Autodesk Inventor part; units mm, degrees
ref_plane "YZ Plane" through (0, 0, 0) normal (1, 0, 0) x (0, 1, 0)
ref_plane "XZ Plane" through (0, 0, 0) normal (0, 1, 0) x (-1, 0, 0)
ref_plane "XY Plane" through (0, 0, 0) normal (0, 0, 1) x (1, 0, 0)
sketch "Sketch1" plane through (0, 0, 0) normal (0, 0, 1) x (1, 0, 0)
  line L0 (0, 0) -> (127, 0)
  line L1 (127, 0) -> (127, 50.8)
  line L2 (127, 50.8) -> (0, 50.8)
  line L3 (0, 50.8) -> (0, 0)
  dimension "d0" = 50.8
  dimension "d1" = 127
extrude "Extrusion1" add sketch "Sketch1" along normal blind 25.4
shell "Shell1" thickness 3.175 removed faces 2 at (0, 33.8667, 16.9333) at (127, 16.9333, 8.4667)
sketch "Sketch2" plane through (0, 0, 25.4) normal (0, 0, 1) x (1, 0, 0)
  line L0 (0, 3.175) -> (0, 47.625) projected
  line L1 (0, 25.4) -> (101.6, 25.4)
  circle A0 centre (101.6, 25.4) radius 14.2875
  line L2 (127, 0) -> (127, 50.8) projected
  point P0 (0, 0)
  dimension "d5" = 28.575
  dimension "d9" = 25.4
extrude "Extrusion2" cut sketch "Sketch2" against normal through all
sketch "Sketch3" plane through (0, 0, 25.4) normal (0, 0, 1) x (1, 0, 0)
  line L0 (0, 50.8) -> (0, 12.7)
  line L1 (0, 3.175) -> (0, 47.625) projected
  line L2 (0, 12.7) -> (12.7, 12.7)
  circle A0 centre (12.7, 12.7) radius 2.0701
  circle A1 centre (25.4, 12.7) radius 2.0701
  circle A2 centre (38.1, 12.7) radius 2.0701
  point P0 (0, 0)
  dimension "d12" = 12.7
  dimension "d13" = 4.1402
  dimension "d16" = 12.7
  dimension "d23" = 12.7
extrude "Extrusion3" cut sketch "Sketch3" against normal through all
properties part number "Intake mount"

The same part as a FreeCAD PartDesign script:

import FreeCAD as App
import Part
import Sketcher
Q = App.Units.Quantity


def faces_at(feature, points):
    """Names of the faces that lie closest to the given points."""
    faces = feature.Shape.Faces
    near = lambda p: min(range(len(faces)), key=lambda i: faces[i].distToShape(Part.Vertex(*p))[0])
    return sorted({f"Face{near(p) + 1}" for p in points})


def add_polygon(sketch, points):
    """Adds a closed chain of lines whose ends are joined by coincident constraints."""
    first, n = sketch.GeometryCount, len(points)
    for a, b in zip(points, points[1:] + points[:1]):
        sketch.addGeometry(Part.LineSegment(App.Vector(*a, 0), App.Vector(*b, 0)), False)
    for i in range(n):
        sketch.addConstraint(Sketcher.Constraint("Coincident", first + i, 2, first + (i + 1) % n, 1))

doc = App.newDocument("Part")
body = doc.addObject("PartDesign::Body", "Body")

# Sketch on XY plane
sketch1 = body.newObject("Sketcher::SketchObject", "Sketch")
sketch1.AttachmentSupport = (doc.getObject("XY_Plane"), [""])
sketch1.MapMode = "FlatFace"
add_polygon(sketch1, [(0, 51), (0, 0), (127, 0), (127, 51)])  # lines 0-3
sketch1.addConstraint(Sketcher.Constraint("Vertical", 0))
sketch1.addConstraint(Sketcher.Constraint("Horizontal", 1))
sketch1.addConstraint(Sketcher.Constraint("Vertical", 2))
sketch1.addConstraint(Sketcher.Constraint("Horizontal", 3))
sketch1.addConstraint(Sketcher.Constraint("Coincident", 0, 2, -1, 1))
sketch1.addConstraint(Sketcher.Constraint("DistanceX", 1, 1, 1, 2, Q("5 in")))
sketch1.addConstraint(Sketcher.Constraint("DistanceY", 0, 2, 0, 1, Q("2 in")))
pad1 = body.newObject("PartDesign::Pad", "Pad")
pad1.Profile = sketch1
pad1.Length = Q("1 in")
doc.recompute()

thickness = body.newObject("PartDesign::Thickness", "Thickness")
thickness.Base = (pad1, faces_at(pad1, [(0, 33.867, 16.933), (127, 16.933, 8.467)]))
thickness.Value = Q("0.125 in")
thickness.Reversed = True
thickness.Join = "Intersection"

# Sketch on XY plane
sketch2 = body.newObject("Sketcher::SketchObject", "Sketch001")
sketch2.AttachmentSupport = (doc.getObject("XY_Plane"), [""])
sketch2.MapMode = "FlatFace"
sketch2.AttachmentOffset = App.Placement(App.Vector(0, 0, 1 * 25.4), App.Rotation())
sketch2.addGeometry(Part.Circle(App.Vector(102, 25, 0), App.Vector(0, 0, 1), 14), False)
sketch2.addConstraint(Sketcher.Constraint("Diameter", 0, Q("1.125 in")))
sketch2.addConstraint(Sketcher.Constraint("DistanceY", -1, 1, 0, 3, Q("1 in")))
sketch2.addConstraint(Sketcher.Constraint("DistanceX", -1, 1, 0, 3, Q("4 in")))
pocket1 = body.newObject("PartDesign::Pocket", "Pocket")
pocket1.Profile = sketch2
pocket1.Type = "ThroughAll"

# Sketch on XY plane
sketch3 = body.newObject("Sketcher::SketchObject", "Sketch002")
sketch3.AttachmentSupport = (doc.getObject("XY_Plane"), [""])
sketch3.MapMode = "FlatFace"
sketch3.AttachmentOffset = App.Placement(App.Vector(0, 0, 1 * 25.4), App.Rotation())
sketch3.addGeometry(Part.Circle(App.Vector(12.7, 12.7, 0), App.Vector(0, 0, 1), 2.1), False)
sketch3.addGeometry(Part.Circle(App.Vector(25.4, 12.7, 0), App.Vector(0, 0, 1), 2.1), False)
sketch3.addGeometry(Part.Circle(App.Vector(38.1, 12.7, 0), App.Vector(0, 0, 1), 2.1), False)
sketch3.addConstraint(Sketcher.Constraint("Equal", 0, 1))
sketch3.addConstraint(Sketcher.Constraint("Equal", 1, 2))
sketch3.addConstraint(Sketcher.Constraint("Horizontal", 0, 3, 1, 3))
sketch3.addConstraint(Sketcher.Constraint("Horizontal", 1, 3, 2, 3))
sketch3.addConstraint(Sketcher.Constraint("Diameter", 0, Q("0.163 in")))
sketch3.addConstraint(Sketcher.Constraint("DistanceX", -1, 1, 1, 3, Q("1 in")))
sketch3.addConstraint(Sketcher.Constraint("DistanceX", 0, 3, 2, 3, Q("1 in")))
sketch3.addConstraint(Sketcher.Constraint("DistanceX", -1, 1, 0, 3, Q("0.5 in")))
sketch3.addConstraint(Sketcher.Constraint("DistanceY", -1, 1, 0, 3, Q("0.5 in")))
pocket2 = body.newObject("PartDesign::Pocket", "Pocket001")
pocket2.Profile = sketch3
pocket2.Type = "ThroughAll"

doc.recompute()
